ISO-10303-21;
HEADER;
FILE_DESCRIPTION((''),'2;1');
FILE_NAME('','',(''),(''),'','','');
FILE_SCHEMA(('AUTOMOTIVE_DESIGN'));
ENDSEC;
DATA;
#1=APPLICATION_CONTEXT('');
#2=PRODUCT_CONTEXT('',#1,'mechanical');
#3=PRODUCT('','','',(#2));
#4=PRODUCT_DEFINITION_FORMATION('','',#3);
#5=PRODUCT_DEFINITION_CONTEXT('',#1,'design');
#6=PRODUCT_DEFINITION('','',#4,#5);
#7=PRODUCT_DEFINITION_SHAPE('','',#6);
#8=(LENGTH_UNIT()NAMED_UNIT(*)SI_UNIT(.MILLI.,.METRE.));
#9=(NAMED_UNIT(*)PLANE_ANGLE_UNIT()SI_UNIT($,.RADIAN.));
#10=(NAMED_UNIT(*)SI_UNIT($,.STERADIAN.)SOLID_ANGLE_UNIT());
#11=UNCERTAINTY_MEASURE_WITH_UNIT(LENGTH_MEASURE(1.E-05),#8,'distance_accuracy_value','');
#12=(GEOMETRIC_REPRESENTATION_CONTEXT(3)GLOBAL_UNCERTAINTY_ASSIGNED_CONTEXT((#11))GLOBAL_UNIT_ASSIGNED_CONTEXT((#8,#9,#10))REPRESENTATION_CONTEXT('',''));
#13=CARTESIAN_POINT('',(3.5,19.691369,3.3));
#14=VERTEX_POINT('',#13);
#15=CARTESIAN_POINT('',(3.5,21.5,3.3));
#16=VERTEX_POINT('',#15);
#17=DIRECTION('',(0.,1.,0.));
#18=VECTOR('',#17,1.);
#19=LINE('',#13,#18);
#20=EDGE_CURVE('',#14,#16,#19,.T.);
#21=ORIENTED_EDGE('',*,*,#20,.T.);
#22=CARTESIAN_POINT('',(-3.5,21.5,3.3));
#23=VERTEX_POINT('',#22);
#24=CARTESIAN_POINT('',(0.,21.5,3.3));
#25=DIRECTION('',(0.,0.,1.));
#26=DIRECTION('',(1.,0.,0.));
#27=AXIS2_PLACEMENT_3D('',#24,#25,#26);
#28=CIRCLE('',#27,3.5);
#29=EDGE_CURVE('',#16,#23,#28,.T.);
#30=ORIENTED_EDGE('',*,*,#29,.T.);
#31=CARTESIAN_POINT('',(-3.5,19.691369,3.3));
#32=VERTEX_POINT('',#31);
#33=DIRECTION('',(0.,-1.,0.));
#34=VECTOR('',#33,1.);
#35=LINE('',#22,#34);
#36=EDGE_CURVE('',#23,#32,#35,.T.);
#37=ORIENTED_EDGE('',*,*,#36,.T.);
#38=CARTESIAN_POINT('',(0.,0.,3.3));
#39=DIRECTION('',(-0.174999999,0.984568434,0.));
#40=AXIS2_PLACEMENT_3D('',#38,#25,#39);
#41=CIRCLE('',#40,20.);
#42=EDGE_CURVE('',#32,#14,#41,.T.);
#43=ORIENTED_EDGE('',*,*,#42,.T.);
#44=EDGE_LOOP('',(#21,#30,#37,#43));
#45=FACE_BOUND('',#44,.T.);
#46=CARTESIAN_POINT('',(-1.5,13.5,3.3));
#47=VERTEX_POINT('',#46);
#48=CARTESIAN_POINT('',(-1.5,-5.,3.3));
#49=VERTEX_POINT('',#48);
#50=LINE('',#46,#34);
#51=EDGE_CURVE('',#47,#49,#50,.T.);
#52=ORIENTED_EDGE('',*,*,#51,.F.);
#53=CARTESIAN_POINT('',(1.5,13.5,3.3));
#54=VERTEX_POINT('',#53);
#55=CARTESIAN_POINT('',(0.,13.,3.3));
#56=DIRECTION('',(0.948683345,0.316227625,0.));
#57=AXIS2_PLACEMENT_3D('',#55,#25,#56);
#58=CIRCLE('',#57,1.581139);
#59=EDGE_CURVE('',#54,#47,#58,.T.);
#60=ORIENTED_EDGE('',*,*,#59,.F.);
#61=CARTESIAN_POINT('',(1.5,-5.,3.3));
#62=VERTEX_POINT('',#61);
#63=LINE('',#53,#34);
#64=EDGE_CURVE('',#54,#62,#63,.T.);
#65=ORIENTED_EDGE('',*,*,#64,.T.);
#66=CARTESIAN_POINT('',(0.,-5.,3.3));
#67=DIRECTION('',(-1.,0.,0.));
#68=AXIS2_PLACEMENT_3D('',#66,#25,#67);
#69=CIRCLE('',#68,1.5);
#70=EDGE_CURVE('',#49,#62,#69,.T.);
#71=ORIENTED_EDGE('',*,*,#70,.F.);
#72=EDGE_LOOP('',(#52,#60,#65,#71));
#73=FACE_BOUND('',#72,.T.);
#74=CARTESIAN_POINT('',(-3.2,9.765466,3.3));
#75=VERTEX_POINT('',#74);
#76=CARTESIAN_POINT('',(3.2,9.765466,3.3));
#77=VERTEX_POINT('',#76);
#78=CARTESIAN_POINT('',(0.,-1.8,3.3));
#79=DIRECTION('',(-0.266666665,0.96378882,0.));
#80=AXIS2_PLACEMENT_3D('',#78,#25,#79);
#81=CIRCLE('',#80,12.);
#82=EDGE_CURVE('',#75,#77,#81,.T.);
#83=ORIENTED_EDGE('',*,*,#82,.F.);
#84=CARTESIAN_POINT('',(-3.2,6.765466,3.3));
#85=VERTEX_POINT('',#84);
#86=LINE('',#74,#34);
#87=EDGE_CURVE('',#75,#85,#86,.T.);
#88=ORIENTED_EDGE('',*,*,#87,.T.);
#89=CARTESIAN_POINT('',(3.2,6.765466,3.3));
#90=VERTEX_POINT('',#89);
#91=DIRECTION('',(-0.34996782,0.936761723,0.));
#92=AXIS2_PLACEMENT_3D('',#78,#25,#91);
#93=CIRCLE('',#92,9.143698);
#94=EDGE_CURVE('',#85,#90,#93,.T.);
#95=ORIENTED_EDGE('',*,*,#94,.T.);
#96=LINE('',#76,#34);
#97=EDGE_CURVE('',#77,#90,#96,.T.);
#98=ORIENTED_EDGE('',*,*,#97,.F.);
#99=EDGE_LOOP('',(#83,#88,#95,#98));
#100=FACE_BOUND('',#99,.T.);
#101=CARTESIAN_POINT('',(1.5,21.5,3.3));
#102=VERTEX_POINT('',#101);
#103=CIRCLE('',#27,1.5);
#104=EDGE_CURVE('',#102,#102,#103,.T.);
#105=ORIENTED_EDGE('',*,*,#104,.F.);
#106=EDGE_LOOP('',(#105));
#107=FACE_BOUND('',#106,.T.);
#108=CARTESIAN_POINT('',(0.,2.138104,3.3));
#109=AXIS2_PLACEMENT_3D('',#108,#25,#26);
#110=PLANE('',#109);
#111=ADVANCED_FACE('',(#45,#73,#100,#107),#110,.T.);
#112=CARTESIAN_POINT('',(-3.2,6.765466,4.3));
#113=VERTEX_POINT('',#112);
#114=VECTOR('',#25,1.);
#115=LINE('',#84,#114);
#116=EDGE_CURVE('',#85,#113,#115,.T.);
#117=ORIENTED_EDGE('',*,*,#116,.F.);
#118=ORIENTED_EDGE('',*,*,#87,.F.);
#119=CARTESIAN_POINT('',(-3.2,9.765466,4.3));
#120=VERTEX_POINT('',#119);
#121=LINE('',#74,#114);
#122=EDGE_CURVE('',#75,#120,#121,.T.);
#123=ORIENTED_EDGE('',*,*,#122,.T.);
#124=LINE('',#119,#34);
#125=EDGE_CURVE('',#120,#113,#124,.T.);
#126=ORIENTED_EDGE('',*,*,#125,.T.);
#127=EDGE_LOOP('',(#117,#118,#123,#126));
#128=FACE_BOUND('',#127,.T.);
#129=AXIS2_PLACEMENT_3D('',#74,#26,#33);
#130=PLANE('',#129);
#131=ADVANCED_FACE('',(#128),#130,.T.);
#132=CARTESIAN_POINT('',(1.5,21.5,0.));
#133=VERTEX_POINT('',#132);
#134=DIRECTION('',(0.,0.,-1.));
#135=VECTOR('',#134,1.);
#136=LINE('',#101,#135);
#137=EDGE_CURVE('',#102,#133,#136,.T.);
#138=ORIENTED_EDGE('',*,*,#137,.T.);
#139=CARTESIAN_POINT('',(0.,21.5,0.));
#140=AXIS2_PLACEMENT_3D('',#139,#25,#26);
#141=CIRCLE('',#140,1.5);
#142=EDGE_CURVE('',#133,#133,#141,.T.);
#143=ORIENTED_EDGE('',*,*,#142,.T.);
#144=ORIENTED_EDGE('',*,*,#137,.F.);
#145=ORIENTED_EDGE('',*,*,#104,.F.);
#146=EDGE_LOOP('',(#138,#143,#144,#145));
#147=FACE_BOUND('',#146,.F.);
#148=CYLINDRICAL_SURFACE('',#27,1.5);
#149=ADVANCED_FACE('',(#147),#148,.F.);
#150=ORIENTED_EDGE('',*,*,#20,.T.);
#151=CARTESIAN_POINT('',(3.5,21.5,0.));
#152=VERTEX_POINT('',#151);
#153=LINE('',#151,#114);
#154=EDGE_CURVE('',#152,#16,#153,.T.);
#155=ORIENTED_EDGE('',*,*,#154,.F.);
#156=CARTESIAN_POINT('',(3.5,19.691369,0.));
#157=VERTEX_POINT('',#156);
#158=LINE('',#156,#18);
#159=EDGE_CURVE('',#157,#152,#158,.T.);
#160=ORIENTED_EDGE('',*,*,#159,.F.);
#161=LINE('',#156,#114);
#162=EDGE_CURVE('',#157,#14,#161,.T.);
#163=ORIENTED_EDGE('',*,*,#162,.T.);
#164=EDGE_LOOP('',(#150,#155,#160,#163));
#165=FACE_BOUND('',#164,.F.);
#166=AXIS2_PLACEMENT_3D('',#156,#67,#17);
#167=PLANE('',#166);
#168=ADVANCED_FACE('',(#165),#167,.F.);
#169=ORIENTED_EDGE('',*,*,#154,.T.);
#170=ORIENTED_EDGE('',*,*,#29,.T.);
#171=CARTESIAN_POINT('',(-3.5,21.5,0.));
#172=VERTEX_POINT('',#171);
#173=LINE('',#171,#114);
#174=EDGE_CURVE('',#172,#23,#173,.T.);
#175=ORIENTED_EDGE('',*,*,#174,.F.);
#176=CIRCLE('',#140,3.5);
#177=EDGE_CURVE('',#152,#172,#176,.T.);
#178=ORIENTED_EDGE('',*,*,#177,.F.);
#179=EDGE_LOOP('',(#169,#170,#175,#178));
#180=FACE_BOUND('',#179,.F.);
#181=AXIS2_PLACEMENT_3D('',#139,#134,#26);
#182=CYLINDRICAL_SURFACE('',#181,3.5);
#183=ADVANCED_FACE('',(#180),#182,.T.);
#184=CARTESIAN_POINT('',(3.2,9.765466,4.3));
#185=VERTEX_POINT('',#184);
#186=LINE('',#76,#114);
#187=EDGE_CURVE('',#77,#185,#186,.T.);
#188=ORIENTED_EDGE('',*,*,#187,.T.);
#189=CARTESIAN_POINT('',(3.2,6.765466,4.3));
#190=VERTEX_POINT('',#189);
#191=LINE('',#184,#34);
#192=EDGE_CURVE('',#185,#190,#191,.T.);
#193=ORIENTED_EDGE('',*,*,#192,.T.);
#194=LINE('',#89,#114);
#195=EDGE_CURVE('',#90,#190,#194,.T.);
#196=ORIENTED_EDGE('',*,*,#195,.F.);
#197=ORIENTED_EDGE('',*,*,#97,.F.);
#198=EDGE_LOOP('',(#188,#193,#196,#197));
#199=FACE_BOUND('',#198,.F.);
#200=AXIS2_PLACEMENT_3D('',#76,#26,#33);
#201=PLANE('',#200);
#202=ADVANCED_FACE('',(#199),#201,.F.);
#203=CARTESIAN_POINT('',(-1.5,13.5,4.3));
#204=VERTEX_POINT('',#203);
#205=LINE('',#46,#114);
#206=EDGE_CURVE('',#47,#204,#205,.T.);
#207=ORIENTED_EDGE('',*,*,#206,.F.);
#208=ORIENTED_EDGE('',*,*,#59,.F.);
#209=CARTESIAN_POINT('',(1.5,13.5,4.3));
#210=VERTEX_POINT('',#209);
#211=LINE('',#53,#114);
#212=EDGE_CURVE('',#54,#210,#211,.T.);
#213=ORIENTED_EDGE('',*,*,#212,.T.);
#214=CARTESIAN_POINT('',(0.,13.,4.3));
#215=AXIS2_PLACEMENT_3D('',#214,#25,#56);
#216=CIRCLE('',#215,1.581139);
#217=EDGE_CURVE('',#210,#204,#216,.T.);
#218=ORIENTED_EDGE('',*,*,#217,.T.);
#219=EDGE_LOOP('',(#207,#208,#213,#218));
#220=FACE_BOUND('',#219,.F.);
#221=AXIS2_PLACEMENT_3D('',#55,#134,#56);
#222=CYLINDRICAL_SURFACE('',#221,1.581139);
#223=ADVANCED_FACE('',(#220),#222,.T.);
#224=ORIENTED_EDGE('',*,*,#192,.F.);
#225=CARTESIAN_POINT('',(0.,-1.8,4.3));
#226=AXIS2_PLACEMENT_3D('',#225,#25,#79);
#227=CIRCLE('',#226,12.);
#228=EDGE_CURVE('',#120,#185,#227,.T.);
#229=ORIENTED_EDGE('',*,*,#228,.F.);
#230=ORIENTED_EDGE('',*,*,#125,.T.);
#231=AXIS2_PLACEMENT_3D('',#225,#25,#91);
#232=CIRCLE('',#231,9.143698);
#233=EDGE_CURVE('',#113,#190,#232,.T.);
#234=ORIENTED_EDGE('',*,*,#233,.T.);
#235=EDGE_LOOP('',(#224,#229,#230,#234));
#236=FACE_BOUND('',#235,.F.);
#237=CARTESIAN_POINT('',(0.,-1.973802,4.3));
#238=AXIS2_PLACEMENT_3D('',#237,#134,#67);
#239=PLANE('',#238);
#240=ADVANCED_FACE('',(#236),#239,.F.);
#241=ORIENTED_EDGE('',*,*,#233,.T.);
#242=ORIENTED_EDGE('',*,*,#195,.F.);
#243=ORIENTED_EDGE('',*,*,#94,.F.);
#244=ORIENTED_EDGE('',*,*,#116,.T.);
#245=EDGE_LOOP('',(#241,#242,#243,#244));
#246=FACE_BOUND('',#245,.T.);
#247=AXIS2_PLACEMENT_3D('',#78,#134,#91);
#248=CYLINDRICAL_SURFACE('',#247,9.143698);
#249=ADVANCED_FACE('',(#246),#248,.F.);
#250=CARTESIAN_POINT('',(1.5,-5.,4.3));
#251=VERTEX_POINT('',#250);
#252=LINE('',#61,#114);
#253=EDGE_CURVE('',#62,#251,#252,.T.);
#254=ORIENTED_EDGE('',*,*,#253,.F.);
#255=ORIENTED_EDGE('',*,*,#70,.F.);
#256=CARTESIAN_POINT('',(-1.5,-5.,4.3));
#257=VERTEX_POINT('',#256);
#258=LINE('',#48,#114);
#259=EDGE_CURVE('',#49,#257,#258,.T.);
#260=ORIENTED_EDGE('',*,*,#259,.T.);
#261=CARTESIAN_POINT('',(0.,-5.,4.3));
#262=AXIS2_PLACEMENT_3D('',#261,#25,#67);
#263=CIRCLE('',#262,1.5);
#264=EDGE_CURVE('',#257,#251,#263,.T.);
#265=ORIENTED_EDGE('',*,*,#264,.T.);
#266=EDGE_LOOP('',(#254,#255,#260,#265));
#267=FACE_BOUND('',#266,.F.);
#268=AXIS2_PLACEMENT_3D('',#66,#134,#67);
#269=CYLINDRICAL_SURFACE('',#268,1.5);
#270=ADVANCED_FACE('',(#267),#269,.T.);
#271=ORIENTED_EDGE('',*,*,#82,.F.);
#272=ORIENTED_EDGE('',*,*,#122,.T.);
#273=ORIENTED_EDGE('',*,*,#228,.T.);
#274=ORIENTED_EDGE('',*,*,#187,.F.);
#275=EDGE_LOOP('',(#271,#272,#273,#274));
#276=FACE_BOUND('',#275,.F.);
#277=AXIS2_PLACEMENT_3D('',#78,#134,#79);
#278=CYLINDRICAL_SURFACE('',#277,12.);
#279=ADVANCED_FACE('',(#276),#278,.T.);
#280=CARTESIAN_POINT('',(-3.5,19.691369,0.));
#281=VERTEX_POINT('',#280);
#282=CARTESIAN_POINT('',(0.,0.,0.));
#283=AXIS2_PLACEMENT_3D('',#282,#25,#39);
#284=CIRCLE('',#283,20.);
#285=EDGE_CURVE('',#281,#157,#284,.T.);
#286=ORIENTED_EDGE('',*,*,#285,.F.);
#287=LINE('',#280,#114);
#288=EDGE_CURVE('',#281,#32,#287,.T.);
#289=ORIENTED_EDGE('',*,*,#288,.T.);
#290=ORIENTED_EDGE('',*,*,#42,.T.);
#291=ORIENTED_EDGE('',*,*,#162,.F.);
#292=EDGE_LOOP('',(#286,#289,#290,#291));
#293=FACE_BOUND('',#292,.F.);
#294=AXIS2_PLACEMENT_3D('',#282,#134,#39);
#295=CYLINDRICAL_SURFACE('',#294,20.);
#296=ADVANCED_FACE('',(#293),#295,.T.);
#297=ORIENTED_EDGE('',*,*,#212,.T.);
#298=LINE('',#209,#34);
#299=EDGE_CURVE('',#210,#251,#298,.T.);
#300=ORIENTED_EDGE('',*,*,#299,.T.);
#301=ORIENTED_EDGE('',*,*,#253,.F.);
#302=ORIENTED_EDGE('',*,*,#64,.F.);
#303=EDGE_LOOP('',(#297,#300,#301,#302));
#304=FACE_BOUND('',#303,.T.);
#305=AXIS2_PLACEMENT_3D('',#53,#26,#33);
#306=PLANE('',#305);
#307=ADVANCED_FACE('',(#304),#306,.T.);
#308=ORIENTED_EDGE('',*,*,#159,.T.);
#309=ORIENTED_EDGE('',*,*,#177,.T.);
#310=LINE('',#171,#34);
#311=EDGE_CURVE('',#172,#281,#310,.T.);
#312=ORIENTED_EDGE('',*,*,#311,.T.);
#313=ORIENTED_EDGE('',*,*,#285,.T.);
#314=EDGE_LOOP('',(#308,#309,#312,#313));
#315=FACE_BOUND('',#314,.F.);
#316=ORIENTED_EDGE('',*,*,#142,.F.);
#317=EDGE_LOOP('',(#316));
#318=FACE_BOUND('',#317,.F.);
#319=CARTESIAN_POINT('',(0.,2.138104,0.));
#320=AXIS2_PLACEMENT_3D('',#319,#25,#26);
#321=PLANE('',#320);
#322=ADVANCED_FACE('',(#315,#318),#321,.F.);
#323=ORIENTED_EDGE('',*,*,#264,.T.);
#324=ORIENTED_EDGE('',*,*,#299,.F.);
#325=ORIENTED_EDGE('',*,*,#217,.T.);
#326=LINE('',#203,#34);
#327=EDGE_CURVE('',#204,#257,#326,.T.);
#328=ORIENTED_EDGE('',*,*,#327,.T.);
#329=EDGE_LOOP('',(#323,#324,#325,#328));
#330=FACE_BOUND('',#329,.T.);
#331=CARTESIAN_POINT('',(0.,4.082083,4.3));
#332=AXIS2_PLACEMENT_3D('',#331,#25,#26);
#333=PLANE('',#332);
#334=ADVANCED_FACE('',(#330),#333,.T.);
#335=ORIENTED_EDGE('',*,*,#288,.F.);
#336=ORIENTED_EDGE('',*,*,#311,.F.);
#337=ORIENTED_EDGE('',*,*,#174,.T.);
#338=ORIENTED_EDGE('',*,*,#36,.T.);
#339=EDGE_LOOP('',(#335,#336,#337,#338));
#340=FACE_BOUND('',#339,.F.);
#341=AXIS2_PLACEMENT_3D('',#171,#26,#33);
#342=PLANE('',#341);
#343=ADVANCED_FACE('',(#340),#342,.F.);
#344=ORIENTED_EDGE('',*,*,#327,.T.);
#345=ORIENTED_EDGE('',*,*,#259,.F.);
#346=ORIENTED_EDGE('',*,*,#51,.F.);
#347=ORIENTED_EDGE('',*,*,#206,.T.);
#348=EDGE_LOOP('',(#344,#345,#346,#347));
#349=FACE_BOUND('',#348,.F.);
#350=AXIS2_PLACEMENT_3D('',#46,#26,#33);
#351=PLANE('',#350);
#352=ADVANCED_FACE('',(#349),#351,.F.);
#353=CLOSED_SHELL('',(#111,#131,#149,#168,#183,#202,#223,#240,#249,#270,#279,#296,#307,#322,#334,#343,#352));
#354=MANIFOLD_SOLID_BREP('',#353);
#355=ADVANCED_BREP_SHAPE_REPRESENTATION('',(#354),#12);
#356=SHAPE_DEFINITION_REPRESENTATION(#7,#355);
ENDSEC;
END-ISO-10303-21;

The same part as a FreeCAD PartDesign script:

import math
import FreeCAD as App
import Part
import Sketcher
from FreeCAD import Vector

doc = App.newDocument("Part")
params = doc.addObject("Spreadsheet::Sheet", "Params")
for row, (alias, value) in enumerate([
    ("sketch1_radius", "20 mm"),
    ("sketch1_radius2", "3.5 mm"),
    ("pad1_length", "3.3 mm"),
    ("sketch2_diameter", "3 mm"),
    ("sketch3_radius", "12 mm"),
    ("sketch3_radius2", "1.5 mm"),
    ("sketch3_height", "3 mm"),
    ("sketch3_height2", "18.5 mm"),
    ("pad2_length", "1 mm"),
], start=1):
    params.set(f"A{row}", alias)
    params.set(f"B{row}", "=" + value)
    params.setAlias(f"B{row}", alias)

body = doc.addObject("PartDesign::Body", "Body")

# Sketch on XY plane
sketch1 = body.newObject("Sketcher::SketchObject", "Sketch")
sketch1.AttachmentSupport = (doc.getObject("XY_Plane"), [""])
sketch1.MapMode = "FlatFace"
sketch1.addGeometry([
    Part.ArcOfCircle(Part.Circle(Vector(0, 21.5, 0), Vector(0, 0, 1), 3.5), math.radians(0), math.radians(180)),
    Part.LineSegment(Vector(-3.5, 21.5, 0), Vector(-3.5, 19.691369, 0)),
    Part.ArcOfCircle(Part.Circle(Vector(0, 0, 0), Vector(0, 0, 1), 20), math.radians(100.078658), math.radians(439.921342)),
    Part.LineSegment(Vector(3.5, 19.691369, 0), Vector(3.5, 21.5, 0)),
], False)
sketch1.addConstraint([
    Sketcher.Constraint("Tangent", 0, 2, 1, 1),
    Sketcher.Constraint("Coincident", 1, 2, 2, 1),
    Sketcher.Constraint("Coincident", 2, 2, 3, 1),
    Sketcher.Constraint("Tangent", 3, 2, 0, 1),
    Sketcher.Constraint("Vertical", 1),
    Sketcher.Constraint("Vertical", 3),
    Sketcher.Constraint("Coincident", 2, 3, -1, 1),
    Sketcher.Constraint("PointOnObject", 0, 3, -2),
    Sketcher.Constraint("Radius", 2, 20.0),
    Sketcher.Constraint("Radius", 0, 3.5),
    Sketcher.Constraint("DistanceY", -1, 1, 0, 3, 21.5),
])
sketch1.setExpression("Constraints[8]", "Params.sketch1_radius")
sketch1.setExpression("Constraints[9]", "Params.sketch1_radius2")
pad1 = body.newObject("PartDesign::Pad", "Pad")
pad1.Profile = sketch1
pad1.setExpression("Length", "Params.pad1_length")

# Sketch on XY plane
sketch2 = body.newObject("Sketcher::SketchObject", "Sketch001")
sketch2.AttachmentSupport = (doc.getObject("XY_Plane"), [""])
sketch2.MapMode = "FlatFace"
sketch2.AttachmentOffset = App.Placement(Vector(0, 0, 3.3), App.Rotation())
sketch2.addGeometry(Part.Circle(Vector(0, 21.5, 0), Vector(0, 0, 1), 1.5), False)
sketch2.addConstraint([
    Sketcher.Constraint("PointOnObject", 0, 3, -2),
    Sketcher.Constraint("Diameter", 0, 3.0),
    Sketcher.Constraint("DistanceY", -1, 1, 0, 3, 21.5),
])
sketch2.setExpression("Constraints[1]", "Params.sketch2_diameter")
pocket1 = body.newObject("PartDesign::Pocket", "Pocket")
pocket1.Profile = sketch2
pocket1.Type = "ThroughAll"

# Sketch on XY plane
sketch3 = body.newObject("Sketcher::SketchObject", "Sketch002")
sketch3.AttachmentSupport = (doc.getObject("XY_Plane"), [""])
sketch3.MapMode = "FlatFace"
sketch3.AttachmentOffset = App.Placement(Vector(0, 0, 3.3), App.Rotation())
sketch3.addGeometry([
    Part.LineSegment(Vector(-1.5, 13.5, 0), Vector(-1.5, -5, 0)),  # 0
    Part.ArcOfCircle(Part.Circle(Vector(0, -5, 0), Vector(0, 0, 1), 1.5), math.radians(180), math.radians(360)),  # 1
    Part.LineSegment(Vector(1.5, -5, 0), Vector(1.5, 13.5, 0)),  # 2
    Part.ArcOfCircle(Part.Circle(Vector(0, 13, 0), Vector(0, 0, 1), 1.581139), math.radians(18.43494), math.radians(161.56506)),  # 3
    Part.LineSegment(Vector(-3.2, 6.765466, 0), Vector(-3.2, 9.765466, 0)),  # 4
    Part.ArcOfCircle(Part.Circle(Vector(0, -1.8, 0), Vector(0, 0, 1), 12), math.radians(105.46601), math.radians(434.53399)),  # 5
    Part.LineSegment(Vector(3.2, 9.765466, 0), Vector(3.2, 6.765466, 0)),  # 6
    Part.ArcOfCircle(Part.Circle(Vector(0, -1.8, 0), Vector(0, 0, 1), 9.143698), math.radians(110.485347), math.radians(429.514653)),  # 7
], False)
sketch3.addConstraint([
    Sketcher.Constraint("Tangent", 0, 2, 1, 1),
    Sketcher.Constraint("Tangent", 1, 2, 2, 1),
    Sketcher.Constraint("Coincident", 2, 2, 3, 1),
    Sketcher.Constraint("Coincident", 3, 2, 0, 1),
    Sketcher.Constraint("Coincident", 4, 2, 5, 1),
    Sketcher.Constraint("Coincident", 5, 2, 6, 1),
    Sketcher.Constraint("Coincident", 6, 2, 7, 2),
    Sketcher.Constraint("Coincident", 7, 1, 4, 1),
    Sketcher.Constraint("Vertical", 0),
    Sketcher.Constraint("Vertical", 2),
    Sketcher.Constraint("Vertical", 4),
    Sketcher.Constraint("Vertical", 6),
    Sketcher.Constraint("Coincident", 7, 3, 5, 3),
    Sketcher.Constraint("Symmetric", 2, 2, 3, 2, -2),
    Sketcher.Constraint("Symmetric", 4, 2, 5, 2, -2),
    Sketcher.Constraint("Radius", 5, 12.0),
    Sketcher.Constraint("Radius", 1, 1.5),
    Sketcher.Constraint("DistanceY", 4, 1, 4, 2, 3.0),
    Sketcher.Constraint("DistanceY", 0, 2, 0, 1, 18.5),
    Sketcher.Constraint("DistanceY", 1, 3, -1, 1, 5.0),
    Sketcher.Constraint("DistanceY", -1, 1, 3, 3, 13.0),
    Sketcher.Constraint("DistanceY", 5, 3, -1, 1, 1.8),
    Sketcher.Constraint("DistanceX", 4, 2, -1, 1, 3.2),
])
sketch3.setExpression("Constraints[15]", "Params.sketch3_radius")
sketch3.setExpression("Constraints[16]", "Params.sketch3_radius2")
sketch3.setExpression("Constraints[17]", "Params.sketch3_height")
sketch3.setExpression("Constraints[18]", "Params.sketch3_height2")
pad2 = body.newObject("PartDesign::Pad", "Pad001")
pad2.Profile = sketch3
pad2.setExpression("Length", "Params.pad2_length")

doc.recompute()
